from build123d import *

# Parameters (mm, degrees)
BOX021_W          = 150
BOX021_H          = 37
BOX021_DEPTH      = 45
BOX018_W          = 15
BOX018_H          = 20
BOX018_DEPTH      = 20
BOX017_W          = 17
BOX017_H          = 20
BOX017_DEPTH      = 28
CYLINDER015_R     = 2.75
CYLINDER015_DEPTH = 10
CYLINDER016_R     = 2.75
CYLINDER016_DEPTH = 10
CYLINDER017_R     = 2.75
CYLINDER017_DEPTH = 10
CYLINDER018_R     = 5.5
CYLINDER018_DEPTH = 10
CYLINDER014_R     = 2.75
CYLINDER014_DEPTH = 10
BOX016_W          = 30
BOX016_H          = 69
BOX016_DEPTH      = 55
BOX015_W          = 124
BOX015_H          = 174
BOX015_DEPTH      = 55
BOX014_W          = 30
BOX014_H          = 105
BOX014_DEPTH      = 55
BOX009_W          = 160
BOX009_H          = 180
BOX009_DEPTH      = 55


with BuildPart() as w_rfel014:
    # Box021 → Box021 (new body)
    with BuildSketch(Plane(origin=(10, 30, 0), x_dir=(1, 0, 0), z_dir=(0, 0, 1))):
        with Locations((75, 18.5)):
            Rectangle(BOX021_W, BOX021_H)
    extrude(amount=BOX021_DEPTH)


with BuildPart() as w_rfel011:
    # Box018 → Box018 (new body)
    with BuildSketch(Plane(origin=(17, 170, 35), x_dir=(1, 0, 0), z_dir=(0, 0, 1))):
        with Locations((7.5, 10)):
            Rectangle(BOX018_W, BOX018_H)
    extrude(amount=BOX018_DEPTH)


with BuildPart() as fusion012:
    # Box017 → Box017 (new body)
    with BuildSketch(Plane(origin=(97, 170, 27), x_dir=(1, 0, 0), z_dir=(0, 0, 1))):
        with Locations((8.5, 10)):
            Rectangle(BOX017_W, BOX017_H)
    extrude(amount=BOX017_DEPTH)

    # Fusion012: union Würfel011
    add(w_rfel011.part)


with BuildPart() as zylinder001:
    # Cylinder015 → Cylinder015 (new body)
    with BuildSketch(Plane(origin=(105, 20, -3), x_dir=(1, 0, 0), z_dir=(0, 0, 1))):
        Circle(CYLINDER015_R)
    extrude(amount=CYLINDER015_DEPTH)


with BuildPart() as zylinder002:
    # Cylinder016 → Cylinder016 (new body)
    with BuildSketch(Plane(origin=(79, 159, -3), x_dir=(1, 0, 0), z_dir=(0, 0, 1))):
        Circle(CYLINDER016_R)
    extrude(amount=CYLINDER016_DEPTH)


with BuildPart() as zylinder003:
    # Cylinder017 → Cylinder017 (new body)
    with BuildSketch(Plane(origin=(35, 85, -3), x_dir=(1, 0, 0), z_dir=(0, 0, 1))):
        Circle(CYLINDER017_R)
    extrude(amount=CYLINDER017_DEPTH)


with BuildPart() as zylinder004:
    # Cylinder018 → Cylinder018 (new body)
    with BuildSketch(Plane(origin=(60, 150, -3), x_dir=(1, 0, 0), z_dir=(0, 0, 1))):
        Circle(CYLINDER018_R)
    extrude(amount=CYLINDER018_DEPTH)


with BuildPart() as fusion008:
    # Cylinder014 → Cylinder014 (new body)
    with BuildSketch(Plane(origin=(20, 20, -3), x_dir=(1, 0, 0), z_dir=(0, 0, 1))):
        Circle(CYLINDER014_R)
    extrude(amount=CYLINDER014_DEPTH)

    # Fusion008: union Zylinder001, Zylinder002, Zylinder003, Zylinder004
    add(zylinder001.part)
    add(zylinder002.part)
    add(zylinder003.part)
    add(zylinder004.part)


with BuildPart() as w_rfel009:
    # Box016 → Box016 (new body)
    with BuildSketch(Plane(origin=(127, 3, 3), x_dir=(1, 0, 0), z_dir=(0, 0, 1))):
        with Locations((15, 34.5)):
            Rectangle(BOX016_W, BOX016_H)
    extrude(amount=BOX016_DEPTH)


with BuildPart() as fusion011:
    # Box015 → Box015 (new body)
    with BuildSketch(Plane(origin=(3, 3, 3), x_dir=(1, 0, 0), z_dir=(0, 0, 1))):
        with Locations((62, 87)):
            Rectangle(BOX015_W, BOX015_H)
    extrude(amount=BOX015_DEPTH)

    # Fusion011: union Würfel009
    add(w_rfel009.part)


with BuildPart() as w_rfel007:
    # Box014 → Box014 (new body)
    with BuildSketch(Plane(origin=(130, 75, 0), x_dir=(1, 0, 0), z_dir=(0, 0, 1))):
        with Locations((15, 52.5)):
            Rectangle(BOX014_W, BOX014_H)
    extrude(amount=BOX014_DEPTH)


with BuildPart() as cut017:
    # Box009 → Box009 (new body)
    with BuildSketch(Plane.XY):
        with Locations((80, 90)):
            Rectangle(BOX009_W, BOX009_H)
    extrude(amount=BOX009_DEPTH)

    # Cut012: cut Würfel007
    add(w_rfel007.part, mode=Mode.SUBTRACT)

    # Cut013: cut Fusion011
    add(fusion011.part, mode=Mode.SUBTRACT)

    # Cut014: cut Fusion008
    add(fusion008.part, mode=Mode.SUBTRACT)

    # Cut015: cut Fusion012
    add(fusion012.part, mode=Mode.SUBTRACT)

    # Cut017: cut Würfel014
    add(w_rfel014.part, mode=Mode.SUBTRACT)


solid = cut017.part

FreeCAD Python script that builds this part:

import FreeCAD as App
import Part
import Sketcher
from FreeCAD import Vector

doc = App.newDocument("Part")
body = doc.addObject("PartDesign::Body", "Body")

# Sketch on XY plane
sketch1 = doc.addObject("Sketcher::SketchObject", "Sketch")
body.addObject(sketch1)
sketch1.AttachmentSupport = (doc.XY_Plane, [""])
sketch1.MapMode = "FlatFace"
sketch1.addGeometry(Part.LineSegment(Vector(10, 67, 0), Vector(10, 30, 0)), False)
sketch1.addGeometry(Part.LineSegment(Vector(10, 30, 0), Vector(160, 30, 0)), False)
sketch1.addGeometry(Part.LineSegment(Vector(160, 30, 0), Vector(160, 67, 0)), False)
sketch1.addGeometry(Part.LineSegment(Vector(160, 67, 0), Vector(10, 67, 0)), False)
sketch1.addConstraint(Sketcher.Constraint("Coincident", 0, 2, 1, 1))
sketch1.addConstraint(Sketcher.Constraint("Coincident", 1, 2, 2, 1))
sketch1.addConstraint(Sketcher.Constraint("Coincident", 2, 2, 3, 1))
sketch1.addConstraint(Sketcher.Constraint("Coincident", 3, 2, 0, 1))
sketch1.addConstraint(Sketcher.Constraint("Vertical", 0))
sketch1.addConstraint(Sketcher.Constraint("Horizontal", 1))
sketch1.addConstraint(Sketcher.Constraint("Vertical", 2))
sketch1.addConstraint(Sketcher.Constraint("Horizontal", 3))
sketch1.addConstraint(Sketcher.Constraint("DistanceX", 1, 1, 1, 2, 150.0))
sketch1.addConstraint(Sketcher.Constraint("DistanceY", 0, 2, 0, 1, 37.0))
sketch1.addConstraint(Sketcher.Constraint("DistanceX", -1, 1, 0, 2, 10.0))
sketch1.addConstraint(Sketcher.Constraint("DistanceY", -1, 1, 0, 2, 30.0))
pad1 = doc.addObject("PartDesign::Pad", "Pad")
body.addObject(pad1)
pad1.Profile = sketch1
pad1.Length = 45
body2 = doc.addObject("PartDesign::Body", "Body001")

# Sketch on XY plane
sketch2 = doc.addObject("Sketcher::SketchObject", "Sketch001")
body2.addObject(sketch2)
sketch2.AttachmentSupport = (doc.getObject("XY_Plane001"), [""])
sketch2.MapMode = "FlatFace"
sketch2.AttachmentOffset = App.Placement(Vector(0, 0, 35), App.Rotation())
sketch2.addGeometry(Part.LineSegment(Vector(17, 190, 0), Vector(17, 170, 0)), False)
sketch2.addGeometry(Part.LineSegment(Vector(17, 170, 0), Vector(32, 170, 0)), False)
sketch2.addGeometry(Part.LineSegment(Vector(32, 170, 0), Vector(32, 190, 0)), False)
sketch2.addGeometry(Part.LineSegment(Vector(32, 190, 0), Vector(17, 190, 0)), False)
sketch2.addConstraint(Sketcher.Constraint("Coincident", 0, 2, 1, 1))
sketch2.addConstraint(Sketcher.Constraint("Coincident", 1, 2, 2, 1))
sketch2.addConstraint(Sketcher.Constraint("Coincident", 2, 2, 3, 1))
sketch2.addConstraint(Sketcher.Constraint("Coincident", 3, 2, 0, 1))
sketch2.addConstraint(Sketcher.Constraint("Vertical", 0))
sketch2.addConstraint(Sketcher.Constraint("Horizontal", 1))
sketch2.addConstraint(Sketcher.Constraint("Vertical", 2))
sketch2.addConstraint(Sketcher.Constraint("Horizontal", 3))
sketch2.addConstraint(Sketcher.Constraint("DistanceX", 1, 1, 1, 2, 15.0))
sketch2.addConstraint(Sketcher.Constraint("DistanceY", 0, 2, 0, 1, 20.0))
sketch2.addConstraint(Sketcher.Constraint("DistanceX", -1, 1, 0, 2, 17.0))
sketch2.addConstraint(Sketcher.Constraint("DistanceY", -1, 1, 0, 2, 170.0))
pad2 = doc.addObject("PartDesign::Pad", "Pad001")
body2.addObject(pad2)
pad2.Profile = sketch2
pad2.Length = 20
body3 = doc.addObject("PartDesign::Body", "Body002")
body3.AllowCompound = True

# Sketch on XY plane
sketch3 = doc.addObject("Sketcher::SketchObject", "Sketch002")
body3.addObject(sketch3)
sketch3.AttachmentSupport = (doc.getObject("XY_Plane002"), [""])
sketch3.MapMode = "FlatFace"
sketch3.AttachmentOffset = App.Placement(Vector(0, 0, 27), App.Rotation())
sketch3.addGeometry(Part.LineSegment(Vector(97, 190, 0), Vector(97, 170, 0)), False)
sketch3.addGeometry(Part.LineSegment(Vector(97, 170, 0), Vector(114, 170, 0)), False)
sketch3.addGeometry(Part.LineSegment(Vector(114, 170, 0), Vector(114, 190, 0)), False)
sketch3.addGeometry(Part.LineSegment(Vector(114, 190, 0), Vector(97, 190, 0)), False)
sketch3.addConstraint(Sketcher.Constraint("Coincident", 0, 2, 1, 1))
sketch3.addConstraint(Sketcher.Constraint("Coincident", 1, 2, 2, 1))
sketch3.addConstraint(Sketcher.Constraint("Coincident", 2, 2, 3, 1))
sketch3.addConstraint(Sketcher.Constraint("Coincident", 3, 2, 0, 1))
sketch3.addConstraint(Sketcher.Constraint("Vertical", 0))
sketch3.addConstraint(Sketcher.Constraint("Horizontal", 1))
sketch3.addConstraint(Sketcher.Constraint("Vertical", 2))
sketch3.addConstraint(Sketcher.Constraint("Horizontal", 3))
sketch3.addConstraint(Sketcher.Constraint("DistanceX", 1, 1, 1, 2, 17.0))
sketch3.addConstraint(Sketcher.Constraint("DistanceY", 0, 2, 0, 1, 20.0))
sketch3.addConstraint(Sketcher.Constraint("DistanceX", -1, 1, 0, 2, 97.0))
sketch3.addConstraint(Sketcher.Constraint("DistanceY", -1, 1, 0, 2, 170.0))
pad3 = doc.addObject("PartDesign::Pad", "Pad002")
body3.addObject(pad3)
pad3.Profile = sketch3
pad3.Length = 28
doc.recompute()

boolean = doc.addObject("PartDesign::Boolean", "Boolean")
body3.addObject(boolean)
boolean.Type = "Fuse"
boolean.addObjects([body2])
body4 = doc.addObject("PartDesign::Body", "Body003")

# Sketch on XY plane
sketch4 = doc.addObject("Sketcher::SketchObject", "Sketch003")
body4.addObject(sketch4)
sketch4.AttachmentSupport = (doc.getObject("XY_Plane003"), [""])
sketch4.MapMode = "FlatFace"
sketch4.AttachmentOffset = App.Placement(Vector(0, 0, -3), App.Rotation())
sketch4.addGeometry(Part.Circle(Vector(105, 20, 0), Vector(0, 0, 1), 2.8), False)
sketch4.addConstraint(Sketcher.Constraint("Diameter", 0, 5.5))
sketch4.addConstraint(Sketcher.Constraint("DistanceX", -1, 1, 0, 3, 105.0))
sketch4.addConstraint(Sketcher.Constraint("DistanceY", -1, 1, 0, 3, 20.0))
pad4 = doc.addObject("PartDesign::Pad", "Pad003")
body4.addObject(pad4)
pad4.Profile = sketch4
pad4.Length = 10
body5 = doc.addObject("PartDesign::Body", "Body004")

# Sketch on XY plane
sketch5 = doc.addObject("Sketcher::SketchObject", "Sketch004")
body5.addObject(sketch5)
sketch5.AttachmentSupport = (doc.getObject("XY_Plane004"), [""])
sketch5.MapMode = "FlatFace"
sketch5.AttachmentOffset = App.Placement(Vector(0, 0, -3), App.Rotation())
sketch5.addGeometry(Part.Circle(Vector(79, 159, 0), Vector(0, 0, 1), 2.8), False)
sketch5.addConstraint(Sketcher.Constraint("Diameter", 0, 5.5))
sketch5.addConstraint(Sketcher.Constraint("DistanceX", -1, 1, 0, 3, 79.0))
sketch5.addConstraint(Sketcher.Constraint("DistanceY", -1, 1, 0, 3, 159.0))
pad5 = doc.addObject("PartDesign::Pad", "Pad004")
body5.addObject(pad5)
pad5.Profile = sketch5
pad5.Length = 10
body6 = doc.addObject("PartDesign::Body", "Body005")

# Sketch on XY plane
sketch6 = doc.addObject("Sketcher::SketchObject", "Sketch005")
body6.addObject(sketch6)
sketch6.AttachmentSupport = (doc.getObject("XY_Plane005"), [""])
sketch6.MapMode = "FlatFace"
sketch6.AttachmentOffset = App.Placement(Vector(0, 0, -3), App.Rotation())
sketch6.addGeometry(Part.Circle(Vector(35, 85, 0), Vector(0, 0, 1), 2.8), False)
sketch6.addConstraint(Sketcher.Constraint("Diameter", 0, 5.5))
sketch6.addConstraint(Sketcher.Constraint("DistanceX", -1, 1, 0, 3, 35.0))
sketch6.addConstraint(Sketcher.Constraint("DistanceY", -1, 1, 0, 3, 85.0))
pad6 = doc.addObject("PartDesign::Pad", "Pad005")
body6.addObject(pad6)
pad6.Profile = sketch6
pad6.Length = 10
body7 = doc.addObject("PartDesign::Body", "Body006")

# Sketch on XY plane
sketch7 = doc.addObject("Sketcher::SketchObject", "Sketch006")
body7.addObject(sketch7)
sketch7.AttachmentSupport = (doc.getObject("XY_Plane006"), [""])
sketch7.MapMode = "FlatFace"
sketch7.AttachmentOffset = App.Placement(Vector(0, 0, -3), App.Rotation())
sketch7.addGeometry(Part.Circle(Vector(60, 150, 0), Vector(0, 0, 1), 6), False)
sketch7.addConstraint(Sketcher.Constraint("Diameter", 0, 11.0))
sketch7.addConstraint(Sketcher.Constraint("DistanceX", -1, 1, 0, 3, 60.0))
sketch7.addConstraint(Sketcher.Constraint("DistanceY", -1, 1, 0, 3, 150.0))
pad7 = doc.addObject("PartDesign::Pad", "Pad006")
body7.addObject(pad7)
pad7.Profile = sketch7
pad7.Length = 10
body8 = doc.addObject("PartDesign::Body", "Body007")
body8.AllowCompound = True

# Sketch on XY plane
sketch8 = doc.addObject("Sketcher::SketchObject", "Sketch007")
body8.addObject(sketch8)
sketch8.AttachmentSupport = (doc.getObject("XY_Plane007"), [""])
sketch8.MapMode = "FlatFace"
sketch8.AttachmentOffset = App.Placement(Vector(0, 0, -3), App.Rotation())
sketch8.addGeometry(Part.Circle(Vector(20, 20, 0), Vector(0, 0, 1), 2.8), False)
sketch8.addConstraint(Sketcher.Constraint("Diameter", 0, 5.5))
sketch8.addConstraint(Sketcher.Constraint("DistanceX", -1, 1, 0, 3, 20.0))
sketch8.addConstraint(Sketcher.Constraint("DistanceY", -1, 1, 0, 3, 20.0))
pad8 = doc.addObject("PartDesign::Pad", "Pad007")
body8.addObject(pad8)
pad8.Profile = sketch8
pad8.Length = 10
doc.recompute()

boolean2 = doc.addObject("PartDesign::Boolean", "Boolean001")
body8.addObject(boolean2)
boolean2.Type = "Fuse"
boolean2.addObjects([body4])
doc.recompute()

boolean3 = doc.addObject("PartDesign::Boolean", "Boolean002")
body8.addObject(boolean3)
boolean3.Type = "Fuse"
boolean3.addObjects([body5])
doc.recompute()

boolean4 = doc.addObject("PartDesign::Boolean", "Boolean003")
body8.addObject(boolean4)
boolean4.Type = "Fuse"
boolean4.addObjects([body6])
doc.recompute()

boolean5 = doc.addObject("PartDesign::Boolean", "Boolean004")
body8.addObject(boolean5)
boolean5.Type = "Fuse"
boolean5.addObjects([body7])
body9 = doc.addObject("PartDesign::Body", "Body008")

# Sketch on XY plane
sketch9 = doc.addObject("Sketcher::SketchObject", "Sketch008")
body9.addObject(sketch9)
sketch9.AttachmentSupport = (doc.getObject("XY_Plane008"), [""])
sketch9.MapMode = "FlatFace"
sketch9.AttachmentOffset = App.Placement(Vector(0, 0, 3), App.Rotation())
sketch9.addGeometry(Part.LineSegment(Vector(127, 72, 0), Vector(127, 3, 0)), False)
sketch9.addGeometry(Part.LineSegment(Vector(127, 3, 0), Vector(157, 3, 0)), False)
sketch9.addGeometry(Part.LineSegment(Vector(157, 3, 0), Vector(157, 72, 0)), False)
sketch9.addGeometry(Part.LineSegment(Vector(157, 72, 0), Vector(127, 72, 0)), False)
sketch9.addConstraint(Sketcher.Constraint("Coincident", 0, 2, 1, 1))
sketch9.addConstraint(Sketcher.Constraint("Coincident", 1, 2, 2, 1))
sketch9.addConstraint(Sketcher.Constraint("Coincident", 2, 2, 3, 1))
sketch9.addConstraint(Sketcher.Constraint("Coincident", 3, 2, 0, 1))
sketch9.addConstraint(Sketcher.Constraint("Vertical", 0))
sketch9.addConstraint(Sketcher.Constraint("Horizontal", 1))
sketch9.addConstraint(Sketcher.Constraint("Vertical", 2))
sketch9.addConstraint(Sketcher.Constraint("Horizontal", 3))
sketch9.addConstraint(Sketcher.Constraint("DistanceX", 1, 1, 1, 2, 30.0))
sketch9.addConstraint(Sketcher.Constraint("DistanceY", 0, 2, 0, 1, 69.0))
sketch9.addConstraint(Sketcher.Constraint("DistanceX", -1, 1, 0, 2, 127.0))
sketch9.addConstraint(Sketcher.Constraint("DistanceY", -1, 1, 0, 2, 3.0))
pad9 = doc.addObject("PartDesign::Pad", "Pad008")
body9.addObject(pad9)
pad9.Profile = sketch9
pad9.Length = 55
body10 = doc.addObject("PartDesign::Body", "Body009")

# Sketch on XY plane
sketch10 = doc.addObject("Sketcher::SketchObject", "Sketch009")
body10.addObject(sketch10)
sketch10.AttachmentSupport = (doc.getObject("XY_Plane009"), [""])
sketch10.MapMode = "FlatFace"
sketch10.AttachmentOffset = App.Placement(Vector(0, 0, 3), App.Rotation())
sketch10.addGeometry(Part.LineSegment(Vector(3, 177, 0), Vector(3, 3, 0)), False)
sketch10.addGeometry(Part.LineSegment(Vector(3, 3, 0), Vector(127, 3, 0)), False)
sketch10.addGeometry(Part.LineSegment(Vector(127, 3, 0), Vector(127, 177, 0)), False)
sketch10.addGeometry(Part.LineSegment(Vector(127, 177, 0), Vector(3, 177, 0)), False)
sketch10.addConstraint(Sketcher.Constraint("Coincident", 0, 2, 1, 1))
sketch10.addConstraint(Sketcher.Constraint("Coincident", 1, 2, 2, 1))
sketch10.addConstraint(Sketcher.Constraint("Coincident", 2, 2, 3, 1))
sketch10.addConstraint(Sketcher.Constraint("Coincident", 3, 2, 0, 1))
sketch10.addConstraint(Sketcher.Constraint("Vertical", 0))
sketch10.addConstraint(Sketcher.Constraint("Horizontal", 1))
sketch10.addConstraint(Sketcher.Constraint("Vertical", 2))
sketch10.addConstraint(Sketcher.Constraint("Horizontal", 3))
sketch10.addConstraint(Sketcher.Constraint("DistanceX", 1, 1, 1, 2, 124.0))
sketch10.addConstraint(Sketcher.Constraint("DistanceY", 0, 2, 0, 1, 174.0))
sketch10.addConstraint(Sketcher.Constraint("DistanceX", -1, 1, 0, 2, 3.0))
sketch10.addConstraint(Sketcher.Constraint("DistanceY", -1, 1, 0, 2, 3.0))
pad10 = doc.addObject("PartDesign::Pad", "Pad009")
body10.addObject(pad10)
pad10.Profile = sketch10
pad10.Length = 55
doc.recompute()

boolean6 = doc.addObject("PartDesign::Boolean", "Boolean005")
body10.addObject(boolean6)
boolean6.Type = "Fuse"
boolean6.addObjects([body9])
body11 = doc.addObject("PartDesign::Body", "Body010")

# Sketch on XY plane
sketch11 = doc.addObject("Sketcher::SketchObject", "Sketch010")
body11.addObject(sketch11)
sketch11.AttachmentSupport = (doc.getObject("XY_Plane010"), [""])
sketch11.MapMode = "FlatFace"
sketch11.addGeometry(Part.LineSegment(Vector(130, 180, 0), Vector(130, 75, 0)), False)
sketch11.addGeometry(Part.LineSegment(Vector(130, 75, 0), Vector(160, 75, 0)), False)
sketch11.addGeometry(Part.LineSegment(Vector(160, 75, 0), Vector(160, 180, 0)), False)
sketch11.addGeometry(Part.LineSegment(Vector(160, 180, 0), Vector(130, 180, 0)), False)
sketch11.addConstraint(Sketcher.Constraint("Coincident", 0, 2, 1, 1))
sketch11.addConstraint(Sketcher.Constraint("Coincident", 1, 2, 2, 1))
sketch11.addConstraint(Sketcher.Constraint("Coincident", 2, 2, 3, 1))
sketch11.addConstraint(Sketcher.Constraint("Coincident", 3, 2, 0, 1))
sketch11.addConstraint(Sketcher.Constraint("Vertical", 0))
sketch11.addConstraint(Sketcher.Constraint("Horizontal", 1))
sketch11.addConstraint(Sketcher.Constraint("Vertical", 2))
sketch11.addConstraint(Sketcher.Constraint("Horizontal", 3))
sketch11.addConstraint(Sketcher.Constraint("DistanceX", 1, 1, 1, 2, 30.0))
sketch11.addConstraint(Sketcher.Constraint("DistanceY", 0, 2, 0, 1, 105.0))
sketch11.addConstraint(Sketcher.Constraint("DistanceX", -1, 1, 0, 2, 130.0))
sketch11.addConstraint(Sketcher.Constraint("DistanceY", -1, 1, 0, 2, 75.0))
pad11 = doc.addObject("PartDesign::Pad", "Pad010")
body11.addObject(pad11)
pad11.Profile = sketch11
pad11.Length = 55
body12 = doc.addObject("PartDesign::Body", "Body011")

# Sketch on XY plane
sketch12 = doc.addObject("Sketcher::SketchObject", "Sketch011")
body12.addObject(sketch12)
sketch12.AttachmentSupport = (doc.getObject("XY_Plane011"), [""])
sketch12.MapMode = "FlatFace"
sketch12.addGeometry(Part.LineSegment(Vector(0, 180, 0), Vector(0, 0, 0)), False)
sketch12.addGeometry(Part.LineSegment(Vector(0, 0, 0), Vector(160, 0, 0)), False)
sketch12.addGeometry(Part.LineSegment(Vector(160, 0, 0), Vector(160, 180, 0)), False)
sketch12.addGeometry(Part.LineSegment(Vector(160, 180, 0), Vector(0, 180, 0)), False)
sketch12.addConstraint(Sketcher.Constraint("Coincident", 0, 2, 1, 1))
sketch12.addConstraint(Sketcher.Constraint("Coincident", 1, 2, 2, 1))
sketch12.addConstraint(Sketcher.Constraint("Coincident", 2, 2, 3, 1))
sketch12.addConstraint(Sketcher.Constraint("Coincident", 3, 2, 0, 1))
sketch12.addConstraint(Sketcher.Constraint("Vertical", 0))
sketch12.addConstraint(Sketcher.Constraint("Horizontal", 1))
sketch12.addConstraint(Sketcher.Constraint("Vertical", 2))
sketch12.addConstraint(Sketcher.Constraint("Horizontal", 3))
sketch12.addConstraint(Sketcher.Constraint("Coincident", 0, 2, -1, 1))
sketch12.addConstraint(Sketcher.Constraint("DistanceX", 1, 1, 1, 2, 160.0))
sketch12.addConstraint(Sketcher.Constraint("DistanceY", 0, 2, 0, 1, 180.0))
pad12 = doc.addObject("PartDesign::Pad", "Pad011")
body12.addObject(pad12)
pad12.Profile = sketch12
pad12.Length = 55
doc.recompute()

boolean7 = doc.addObject("PartDesign::Boolean", "Boolean006")
body12.addObject(boolean7)
boolean7.Type = "Cut"
boolean7.addObjects([body11])
doc.recompute()

boolean8 = doc.addObject("PartDesign::Boolean", "Boolean007")
body12.addObject(boolean8)
boolean8.Type = "Cut"
boolean8.addObjects([body10])
doc.recompute()

boolean9 = doc.addObject("PartDesign::Boolean", "Boolean008")
body12.addObject(boolean9)
boolean9.Type = "Cut"
boolean9.addObjects([body8])
doc.recompute()

boolean10 = doc.addObject("PartDesign::Boolean", "Boolean009")
body12.addObject(boolean10)
boolean10.Type = "Cut"
boolean10.addObjects([body3])
doc.recompute()

boolean11 = doc.addObject("PartDesign::Boolean", "Boolean010")
body12.addObject(boolean11)
boolean11.Type = "Cut"
boolean11.addObjects([body])

doc.recompute()
